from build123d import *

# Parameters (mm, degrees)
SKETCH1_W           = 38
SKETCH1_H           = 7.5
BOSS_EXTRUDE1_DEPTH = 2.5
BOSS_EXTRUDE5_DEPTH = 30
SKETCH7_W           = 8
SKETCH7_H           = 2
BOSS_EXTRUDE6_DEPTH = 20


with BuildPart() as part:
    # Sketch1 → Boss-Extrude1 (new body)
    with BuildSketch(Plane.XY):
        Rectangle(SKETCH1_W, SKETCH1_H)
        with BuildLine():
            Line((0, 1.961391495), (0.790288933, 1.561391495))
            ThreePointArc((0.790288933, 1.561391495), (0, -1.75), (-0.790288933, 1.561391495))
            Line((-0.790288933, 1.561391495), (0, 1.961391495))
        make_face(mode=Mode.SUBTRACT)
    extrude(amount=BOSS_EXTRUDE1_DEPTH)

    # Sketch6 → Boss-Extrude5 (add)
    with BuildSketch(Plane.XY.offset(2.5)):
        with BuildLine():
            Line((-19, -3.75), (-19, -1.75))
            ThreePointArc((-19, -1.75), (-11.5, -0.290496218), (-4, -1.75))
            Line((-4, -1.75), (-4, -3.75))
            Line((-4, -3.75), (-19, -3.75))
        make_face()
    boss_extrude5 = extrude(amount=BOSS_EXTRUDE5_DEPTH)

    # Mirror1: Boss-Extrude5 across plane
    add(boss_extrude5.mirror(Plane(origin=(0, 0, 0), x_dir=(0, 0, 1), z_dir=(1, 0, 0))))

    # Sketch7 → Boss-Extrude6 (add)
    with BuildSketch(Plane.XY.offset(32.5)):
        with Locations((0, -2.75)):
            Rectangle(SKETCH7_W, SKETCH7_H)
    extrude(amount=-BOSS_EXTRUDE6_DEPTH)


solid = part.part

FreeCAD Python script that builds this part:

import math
import FreeCAD as App
import Part
import Sketcher
Q = App.Units.Quantity

doc = App.newDocument("Part")
body = doc.addObject("PartDesign::Body", "Body")

sketch1 = doc.addObject("Sketcher::SketchObject", "Sketch")
body.addObject(sketch1)
sketch1.AttachmentSupport = (doc.XY_Plane, [""])
sketch1.MapMode = "FlatFace"
sketch1.addGeometry([
    Part.LineSegment(App.Vector(-19, 3.75, 0), App.Vector(-19, -3.75, 0)),
    Part.LineSegment(App.Vector(-19, -3.75, 0), App.Vector(19, -3.75, 0)),
    Part.LineSegment(App.Vector(19, -3.75, 0), App.Vector(19, 3.75, 0)),
    Part.LineSegment(App.Vector(19, 3.75, 0), App.Vector(-19, 3.75, 0)),
    Part.LineSegment(App.Vector(-0.790289, 1.561391, 0), App.Vector(0, 1.961391, 0)),
    Part.LineSegment(App.Vector(0, 1.961391, 0), App.Vector(0.790289, 1.561391, 0)),
    Part.ArcOfCircle(Part.Circle(App.Vector(0, 0, 0), App.Vector(0, 0, 1), 1.75), math.radians(116.845979), math.radians(423.154021)),
], False)
sketch1.addConstraint([
    Sketcher.Constraint("Coincident", 0, 2, 1, 1),
    Sketcher.Constraint("Coincident", 1, 2, 2, 1),
    Sketcher.Constraint("Coincident", 2, 2, 3, 1),
    Sketcher.Constraint("Coincident", 3, 2, 0, 1),
    Sketcher.Constraint("Coincident", 4, 2, 5, 1),
    Sketcher.Constraint("Tangent", 5, 2, 6, 2),
    Sketcher.Constraint("Tangent", 6, 1, 4, 1),
    Sketcher.Constraint("Vertical", 0),
    Sketcher.Constraint("Horizontal", 1),
    Sketcher.Constraint("Vertical", 2),
    Sketcher.Constraint("Horizontal", 3),
    Sketcher.Constraint("Coincident", 6, 3, -1, 1),
    Sketcher.Constraint("Symmetric", 0, 2, 2, 2, -1, 1),
    Sketcher.Constraint("PointOnObject", 4, 2, -2),
    Sketcher.Constraint("DistanceX", 1, 1, 1, 2, Q("38 mm")),
    Sketcher.Constraint("Radius", 6, Q("1.75 mm")),
    Sketcher.Constraint("DistanceY", 0, 2, 0, 1, Q("7.5 mm")),
    Sketcher.Constraint("DistanceY", 5, 2, 4, 2, Q("0.4 mm")),
])
pad1 = doc.addObject("PartDesign::Pad", "Pad")
body.addObject(pad1)
pad1.Profile = sketch1
pad1.Length = 2.5

sketch2 = doc.addObject("Sketcher::SketchObject", "Sketch001")
body.addObject(sketch2)
sketch2.AttachmentSupport = (doc.XY_Plane, [""])
sketch2.MapMode = "FlatFace"
sketch2.AttachmentOffset = App.Placement(App.Vector(0, 0, 2.5), App.Rotation())
sketch2.addGeometry([
    Part.LineSegment(App.Vector(-19, -1.75, 0), App.Vector(-19, -3.75, 0)),
    Part.LineSegment(App.Vector(-19, -3.75, 0), App.Vector(-4, -3.75, 0)),
    Part.LineSegment(App.Vector(-4, -3.75, 0), App.Vector(-4, -1.75, 0)),
    Part.ArcOfCircle(Part.Circle(App.Vector(-11.5, -20.290496, 0), App.Vector(0, 0, 1), 20), math.radians(67.975687), math.radians(112.024313)),
], False)
sketch2.addConstraint([
    Sketcher.Constraint("Coincident", 0, 2, 1, 1),
    Sketcher.Constraint("Coincident", 1, 2, 2, 1),
    Sketcher.Constraint("Coincident", 2, 2, 3, 1),
    Sketcher.Constraint("Coincident", 3, 2, 0, 1),
    Sketcher.Constraint("Vertical", 0),
    Sketcher.Constraint("Horizontal", 1),
    Sketcher.Constraint("Vertical", 2),
    Sketcher.Constraint("Horizontal", 2, 2, 3, 2),
    Sketcher.Constraint("Radius", 3, Q("20 mm")),
    Sketcher.Constraint("DistanceX", 1, 1, 1, 2, Q("15 mm")),
    Sketcher.Constraint("DistanceY", 0, 2, 0, 1, Q("2 mm")),
    Sketcher.Constraint("DistanceX", 0, 2, -1, 1, Q("19 mm")),
    Sketcher.Constraint("DistanceY", 0, 2, -1, 1, Q("3.75 mm")),
])
pad2 = doc.addObject("PartDesign::Pad", "Pad001")
body.addObject(pad2)
pad2.Profile = sketch2
pad2.Length = 30
doc.recompute()

mirrored = doc.addObject("PartDesign::Mirrored", "Mirrored")
body.addObject(mirrored)
mirrored.Originals = [pad2]
mirrored.MirrorPlane = (doc.YZ_Plane, [""])
body.Tip = mirrored

sketch3 = doc.addObject("Sketcher::SketchObject", "Sketch002")
body.addObject(sketch3)
sketch3.AttachmentSupport = (doc.XY_Plane, [""])
sketch3.MapMode = "FlatFace"
sketch3.AttachmentOffset = App.Placement(App.Vector(0, 0, 32.5), App.Rotation())
sketch3.addGeometry([
    Part.LineSegment(App.Vector(-4, -1.75, 0), App.Vector(-4, -3.75, 0)),
    Part.LineSegment(App.Vector(-4, -3.75, 0), App.Vector(4, -3.75, 0)),
    Part.LineSegment(App.Vector(4, -3.75, 0), App.Vector(4, -1.75, 0)),
    Part.LineSegment(App.Vector(4, -1.75, 0), App.Vector(-4, -1.75, 0)),
], False)
sketch3.addConstraint([
    Sketcher.Constraint("Coincident", 0, 2, 1, 1),
    Sketcher.Constraint("Coincident", 1, 2, 2, 1),
    Sketcher.Constraint("Coincident", 2, 2, 3, 1),
    Sketcher.Constraint("Coincident", 3, 2, 0, 1),
    Sketcher.Constraint("Vertical", 0),
    Sketcher.Constraint("Horizontal", 1),
    Sketcher.Constraint("Vertical", 2),
    Sketcher.Constraint("Horizontal", 3),
    Sketcher.Constraint("DistanceX", 1, 1, 1, 2, Q("8 mm")),
    Sketcher.Constraint("DistanceY", 0, 2, 0, 1, Q("2 mm")),
    Sketcher.Constraint("DistanceX", 0, 2, -1, 1, Q("4 mm")),
    Sketcher.Constraint("DistanceY", 0, 2, -1, 1, Q("3.75 mm")),
])
pad3 = doc.addObject("PartDesign::Pad", "Pad002")
body.addObject(pad3)
pad3.Profile = sketch3
pad3.Length = 20
pad3.Reversed = True

doc.recompute()
